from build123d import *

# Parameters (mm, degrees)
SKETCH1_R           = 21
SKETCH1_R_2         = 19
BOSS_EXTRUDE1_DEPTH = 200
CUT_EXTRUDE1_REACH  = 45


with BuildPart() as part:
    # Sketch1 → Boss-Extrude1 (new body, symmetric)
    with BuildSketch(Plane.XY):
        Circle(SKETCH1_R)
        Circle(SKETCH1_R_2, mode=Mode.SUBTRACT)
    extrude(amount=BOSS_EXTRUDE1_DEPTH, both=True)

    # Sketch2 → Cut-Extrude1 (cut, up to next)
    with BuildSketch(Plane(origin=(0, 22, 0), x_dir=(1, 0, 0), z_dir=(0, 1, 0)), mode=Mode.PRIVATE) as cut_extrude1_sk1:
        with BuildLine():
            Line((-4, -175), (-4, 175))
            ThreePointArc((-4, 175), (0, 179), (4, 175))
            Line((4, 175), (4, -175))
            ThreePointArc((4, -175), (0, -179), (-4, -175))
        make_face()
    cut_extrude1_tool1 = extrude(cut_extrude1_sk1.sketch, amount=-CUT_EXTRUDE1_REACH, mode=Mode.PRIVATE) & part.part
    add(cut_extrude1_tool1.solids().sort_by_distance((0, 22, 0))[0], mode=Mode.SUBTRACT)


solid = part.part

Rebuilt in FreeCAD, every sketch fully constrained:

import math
import FreeCAD as App
import Part
import Sketcher

V = App.Vector

doc = App.newDocument("Part")
params = doc.addObject("Spreadsheet::Sheet", "Params")
for row, (alias, value) in enumerate([
    ("sketch1_diameter", "42 mm"),
    ("sketch1_diameter2", "38 mm"),
    ("pad1_length", "400 mm"),
    ("sketch2_radius", "4 mm"),
    ("sketch2_height", "350 mm"),
    ("pocket1_length", "3.425824 mm"),
], start=1):
    params.set(f"A{row}", alias)
    params.set(f"B{row}", "=" + value)
    params.setAlias(f"B{row}", alias)

body = doc.addObject("PartDesign::Body", "Body")

# Sketch on XY plane
sketch1 = body.newObject("Sketcher::SketchObject", "Sketch")
sketch1.AttachmentSupport = (doc.getObject("XY_Plane"), [""])
sketch1.MapMode = "FlatFace"
sketch1.addGeometry(Part.Circle(V(0, 0, 0), V(0, 0, 1), 21), False)
sketch1.addGeometry(Part.Circle(V(0, 0, 0), V(0, 0, 1), 19), False)
sketch1.addConstraint(Sketcher.Constraint("Coincident", 0, 3, -1, 1))
sketch1.addConstraint(Sketcher.Constraint("Coincident", 1, 3, -1, 1))
sketch1.addConstraint(Sketcher.Constraint("Diameter", 0, 42.0))
sketch1.addConstraint(Sketcher.Constraint("Diameter", 1, 38.0))
sketch1.setExpression("Constraints[2]", "Params.sketch1_diameter")
sketch1.setExpression("Constraints[3]", "Params.sketch1_diameter2")
pad1 = body.newObject("PartDesign::Pad", "Pad")
pad1.Profile = sketch1
pad1.setExpression("Length", "Params.pad1_length")
pad1.Midplane = True

# Sketch on XZ plane
sketch2 = body.newObject("Sketcher::SketchObject", "Sketch001")
sketch2.AttachmentSupport = (doc.getObject("XZ_Plane"), [""])
sketch2.MapMode = "FlatFace"
sketch2.AttachmentOffset = App.Placement(V(0, 0, -22), App.Rotation())
sketch2.addGeometry(Part.LineSegment(V(-4, -175, 0), V(-4, 175, 0)), False)
sketch2.addGeometry(Part.ArcOfCircle(Part.Circle(V(0, 175, 0), V(0, 0, 1), 4), math.radians(0), math.radians(180)), False)
sketch2.addGeometry(Part.LineSegment(V(4, 175, 0), V(4, -175, 0)), False)
sketch2.addGeometry(Part.ArcOfCircle(Part.Circle(V(0, -175, 0), V(0, 0, 1), 4), math.radians(180), math.radians(360)), False)
sketch2.addConstraint(Sketcher.Constraint("Tangent", 0, 2, 1, 2))
sketch2.addConstraint(Sketcher.Constraint("Tangent", 1, 1, 2, 1))
sketch2.addConstraint(Sketcher.Constraint("Tangent", 2, 2, 3, 2))
sketch2.addConstraint(Sketcher.Constraint("Tangent", 3, 1, 0, 1))
sketch2.addConstraint(Sketcher.Constraint("Vertical", 0))
sketch2.addConstraint(Sketcher.Constraint("Vertical", 2))
sketch2.addConstraint(Sketcher.Constraint("Symmetric", 1, 3, 3, 3, -1, 1))
sketch2.addConstraint(Sketcher.Constraint("Radius", 1, 4.0))
sketch2.addConstraint(Sketcher.Constraint("DistanceY", 0, 1, 0, 2, 350.0))
sketch2.setExpression("Constraints[7]", "Params.sketch2_radius")
sketch2.setExpression("Constraints[8]", "Params.sketch2_height")
pocket1 = body.newObject("PartDesign::Pocket", "Pocket")
pocket1.Profile = sketch2
pocket1.setExpression("Length", "Params.pocket1_length")
pocket1.Reversed = True

doc.recompute()
